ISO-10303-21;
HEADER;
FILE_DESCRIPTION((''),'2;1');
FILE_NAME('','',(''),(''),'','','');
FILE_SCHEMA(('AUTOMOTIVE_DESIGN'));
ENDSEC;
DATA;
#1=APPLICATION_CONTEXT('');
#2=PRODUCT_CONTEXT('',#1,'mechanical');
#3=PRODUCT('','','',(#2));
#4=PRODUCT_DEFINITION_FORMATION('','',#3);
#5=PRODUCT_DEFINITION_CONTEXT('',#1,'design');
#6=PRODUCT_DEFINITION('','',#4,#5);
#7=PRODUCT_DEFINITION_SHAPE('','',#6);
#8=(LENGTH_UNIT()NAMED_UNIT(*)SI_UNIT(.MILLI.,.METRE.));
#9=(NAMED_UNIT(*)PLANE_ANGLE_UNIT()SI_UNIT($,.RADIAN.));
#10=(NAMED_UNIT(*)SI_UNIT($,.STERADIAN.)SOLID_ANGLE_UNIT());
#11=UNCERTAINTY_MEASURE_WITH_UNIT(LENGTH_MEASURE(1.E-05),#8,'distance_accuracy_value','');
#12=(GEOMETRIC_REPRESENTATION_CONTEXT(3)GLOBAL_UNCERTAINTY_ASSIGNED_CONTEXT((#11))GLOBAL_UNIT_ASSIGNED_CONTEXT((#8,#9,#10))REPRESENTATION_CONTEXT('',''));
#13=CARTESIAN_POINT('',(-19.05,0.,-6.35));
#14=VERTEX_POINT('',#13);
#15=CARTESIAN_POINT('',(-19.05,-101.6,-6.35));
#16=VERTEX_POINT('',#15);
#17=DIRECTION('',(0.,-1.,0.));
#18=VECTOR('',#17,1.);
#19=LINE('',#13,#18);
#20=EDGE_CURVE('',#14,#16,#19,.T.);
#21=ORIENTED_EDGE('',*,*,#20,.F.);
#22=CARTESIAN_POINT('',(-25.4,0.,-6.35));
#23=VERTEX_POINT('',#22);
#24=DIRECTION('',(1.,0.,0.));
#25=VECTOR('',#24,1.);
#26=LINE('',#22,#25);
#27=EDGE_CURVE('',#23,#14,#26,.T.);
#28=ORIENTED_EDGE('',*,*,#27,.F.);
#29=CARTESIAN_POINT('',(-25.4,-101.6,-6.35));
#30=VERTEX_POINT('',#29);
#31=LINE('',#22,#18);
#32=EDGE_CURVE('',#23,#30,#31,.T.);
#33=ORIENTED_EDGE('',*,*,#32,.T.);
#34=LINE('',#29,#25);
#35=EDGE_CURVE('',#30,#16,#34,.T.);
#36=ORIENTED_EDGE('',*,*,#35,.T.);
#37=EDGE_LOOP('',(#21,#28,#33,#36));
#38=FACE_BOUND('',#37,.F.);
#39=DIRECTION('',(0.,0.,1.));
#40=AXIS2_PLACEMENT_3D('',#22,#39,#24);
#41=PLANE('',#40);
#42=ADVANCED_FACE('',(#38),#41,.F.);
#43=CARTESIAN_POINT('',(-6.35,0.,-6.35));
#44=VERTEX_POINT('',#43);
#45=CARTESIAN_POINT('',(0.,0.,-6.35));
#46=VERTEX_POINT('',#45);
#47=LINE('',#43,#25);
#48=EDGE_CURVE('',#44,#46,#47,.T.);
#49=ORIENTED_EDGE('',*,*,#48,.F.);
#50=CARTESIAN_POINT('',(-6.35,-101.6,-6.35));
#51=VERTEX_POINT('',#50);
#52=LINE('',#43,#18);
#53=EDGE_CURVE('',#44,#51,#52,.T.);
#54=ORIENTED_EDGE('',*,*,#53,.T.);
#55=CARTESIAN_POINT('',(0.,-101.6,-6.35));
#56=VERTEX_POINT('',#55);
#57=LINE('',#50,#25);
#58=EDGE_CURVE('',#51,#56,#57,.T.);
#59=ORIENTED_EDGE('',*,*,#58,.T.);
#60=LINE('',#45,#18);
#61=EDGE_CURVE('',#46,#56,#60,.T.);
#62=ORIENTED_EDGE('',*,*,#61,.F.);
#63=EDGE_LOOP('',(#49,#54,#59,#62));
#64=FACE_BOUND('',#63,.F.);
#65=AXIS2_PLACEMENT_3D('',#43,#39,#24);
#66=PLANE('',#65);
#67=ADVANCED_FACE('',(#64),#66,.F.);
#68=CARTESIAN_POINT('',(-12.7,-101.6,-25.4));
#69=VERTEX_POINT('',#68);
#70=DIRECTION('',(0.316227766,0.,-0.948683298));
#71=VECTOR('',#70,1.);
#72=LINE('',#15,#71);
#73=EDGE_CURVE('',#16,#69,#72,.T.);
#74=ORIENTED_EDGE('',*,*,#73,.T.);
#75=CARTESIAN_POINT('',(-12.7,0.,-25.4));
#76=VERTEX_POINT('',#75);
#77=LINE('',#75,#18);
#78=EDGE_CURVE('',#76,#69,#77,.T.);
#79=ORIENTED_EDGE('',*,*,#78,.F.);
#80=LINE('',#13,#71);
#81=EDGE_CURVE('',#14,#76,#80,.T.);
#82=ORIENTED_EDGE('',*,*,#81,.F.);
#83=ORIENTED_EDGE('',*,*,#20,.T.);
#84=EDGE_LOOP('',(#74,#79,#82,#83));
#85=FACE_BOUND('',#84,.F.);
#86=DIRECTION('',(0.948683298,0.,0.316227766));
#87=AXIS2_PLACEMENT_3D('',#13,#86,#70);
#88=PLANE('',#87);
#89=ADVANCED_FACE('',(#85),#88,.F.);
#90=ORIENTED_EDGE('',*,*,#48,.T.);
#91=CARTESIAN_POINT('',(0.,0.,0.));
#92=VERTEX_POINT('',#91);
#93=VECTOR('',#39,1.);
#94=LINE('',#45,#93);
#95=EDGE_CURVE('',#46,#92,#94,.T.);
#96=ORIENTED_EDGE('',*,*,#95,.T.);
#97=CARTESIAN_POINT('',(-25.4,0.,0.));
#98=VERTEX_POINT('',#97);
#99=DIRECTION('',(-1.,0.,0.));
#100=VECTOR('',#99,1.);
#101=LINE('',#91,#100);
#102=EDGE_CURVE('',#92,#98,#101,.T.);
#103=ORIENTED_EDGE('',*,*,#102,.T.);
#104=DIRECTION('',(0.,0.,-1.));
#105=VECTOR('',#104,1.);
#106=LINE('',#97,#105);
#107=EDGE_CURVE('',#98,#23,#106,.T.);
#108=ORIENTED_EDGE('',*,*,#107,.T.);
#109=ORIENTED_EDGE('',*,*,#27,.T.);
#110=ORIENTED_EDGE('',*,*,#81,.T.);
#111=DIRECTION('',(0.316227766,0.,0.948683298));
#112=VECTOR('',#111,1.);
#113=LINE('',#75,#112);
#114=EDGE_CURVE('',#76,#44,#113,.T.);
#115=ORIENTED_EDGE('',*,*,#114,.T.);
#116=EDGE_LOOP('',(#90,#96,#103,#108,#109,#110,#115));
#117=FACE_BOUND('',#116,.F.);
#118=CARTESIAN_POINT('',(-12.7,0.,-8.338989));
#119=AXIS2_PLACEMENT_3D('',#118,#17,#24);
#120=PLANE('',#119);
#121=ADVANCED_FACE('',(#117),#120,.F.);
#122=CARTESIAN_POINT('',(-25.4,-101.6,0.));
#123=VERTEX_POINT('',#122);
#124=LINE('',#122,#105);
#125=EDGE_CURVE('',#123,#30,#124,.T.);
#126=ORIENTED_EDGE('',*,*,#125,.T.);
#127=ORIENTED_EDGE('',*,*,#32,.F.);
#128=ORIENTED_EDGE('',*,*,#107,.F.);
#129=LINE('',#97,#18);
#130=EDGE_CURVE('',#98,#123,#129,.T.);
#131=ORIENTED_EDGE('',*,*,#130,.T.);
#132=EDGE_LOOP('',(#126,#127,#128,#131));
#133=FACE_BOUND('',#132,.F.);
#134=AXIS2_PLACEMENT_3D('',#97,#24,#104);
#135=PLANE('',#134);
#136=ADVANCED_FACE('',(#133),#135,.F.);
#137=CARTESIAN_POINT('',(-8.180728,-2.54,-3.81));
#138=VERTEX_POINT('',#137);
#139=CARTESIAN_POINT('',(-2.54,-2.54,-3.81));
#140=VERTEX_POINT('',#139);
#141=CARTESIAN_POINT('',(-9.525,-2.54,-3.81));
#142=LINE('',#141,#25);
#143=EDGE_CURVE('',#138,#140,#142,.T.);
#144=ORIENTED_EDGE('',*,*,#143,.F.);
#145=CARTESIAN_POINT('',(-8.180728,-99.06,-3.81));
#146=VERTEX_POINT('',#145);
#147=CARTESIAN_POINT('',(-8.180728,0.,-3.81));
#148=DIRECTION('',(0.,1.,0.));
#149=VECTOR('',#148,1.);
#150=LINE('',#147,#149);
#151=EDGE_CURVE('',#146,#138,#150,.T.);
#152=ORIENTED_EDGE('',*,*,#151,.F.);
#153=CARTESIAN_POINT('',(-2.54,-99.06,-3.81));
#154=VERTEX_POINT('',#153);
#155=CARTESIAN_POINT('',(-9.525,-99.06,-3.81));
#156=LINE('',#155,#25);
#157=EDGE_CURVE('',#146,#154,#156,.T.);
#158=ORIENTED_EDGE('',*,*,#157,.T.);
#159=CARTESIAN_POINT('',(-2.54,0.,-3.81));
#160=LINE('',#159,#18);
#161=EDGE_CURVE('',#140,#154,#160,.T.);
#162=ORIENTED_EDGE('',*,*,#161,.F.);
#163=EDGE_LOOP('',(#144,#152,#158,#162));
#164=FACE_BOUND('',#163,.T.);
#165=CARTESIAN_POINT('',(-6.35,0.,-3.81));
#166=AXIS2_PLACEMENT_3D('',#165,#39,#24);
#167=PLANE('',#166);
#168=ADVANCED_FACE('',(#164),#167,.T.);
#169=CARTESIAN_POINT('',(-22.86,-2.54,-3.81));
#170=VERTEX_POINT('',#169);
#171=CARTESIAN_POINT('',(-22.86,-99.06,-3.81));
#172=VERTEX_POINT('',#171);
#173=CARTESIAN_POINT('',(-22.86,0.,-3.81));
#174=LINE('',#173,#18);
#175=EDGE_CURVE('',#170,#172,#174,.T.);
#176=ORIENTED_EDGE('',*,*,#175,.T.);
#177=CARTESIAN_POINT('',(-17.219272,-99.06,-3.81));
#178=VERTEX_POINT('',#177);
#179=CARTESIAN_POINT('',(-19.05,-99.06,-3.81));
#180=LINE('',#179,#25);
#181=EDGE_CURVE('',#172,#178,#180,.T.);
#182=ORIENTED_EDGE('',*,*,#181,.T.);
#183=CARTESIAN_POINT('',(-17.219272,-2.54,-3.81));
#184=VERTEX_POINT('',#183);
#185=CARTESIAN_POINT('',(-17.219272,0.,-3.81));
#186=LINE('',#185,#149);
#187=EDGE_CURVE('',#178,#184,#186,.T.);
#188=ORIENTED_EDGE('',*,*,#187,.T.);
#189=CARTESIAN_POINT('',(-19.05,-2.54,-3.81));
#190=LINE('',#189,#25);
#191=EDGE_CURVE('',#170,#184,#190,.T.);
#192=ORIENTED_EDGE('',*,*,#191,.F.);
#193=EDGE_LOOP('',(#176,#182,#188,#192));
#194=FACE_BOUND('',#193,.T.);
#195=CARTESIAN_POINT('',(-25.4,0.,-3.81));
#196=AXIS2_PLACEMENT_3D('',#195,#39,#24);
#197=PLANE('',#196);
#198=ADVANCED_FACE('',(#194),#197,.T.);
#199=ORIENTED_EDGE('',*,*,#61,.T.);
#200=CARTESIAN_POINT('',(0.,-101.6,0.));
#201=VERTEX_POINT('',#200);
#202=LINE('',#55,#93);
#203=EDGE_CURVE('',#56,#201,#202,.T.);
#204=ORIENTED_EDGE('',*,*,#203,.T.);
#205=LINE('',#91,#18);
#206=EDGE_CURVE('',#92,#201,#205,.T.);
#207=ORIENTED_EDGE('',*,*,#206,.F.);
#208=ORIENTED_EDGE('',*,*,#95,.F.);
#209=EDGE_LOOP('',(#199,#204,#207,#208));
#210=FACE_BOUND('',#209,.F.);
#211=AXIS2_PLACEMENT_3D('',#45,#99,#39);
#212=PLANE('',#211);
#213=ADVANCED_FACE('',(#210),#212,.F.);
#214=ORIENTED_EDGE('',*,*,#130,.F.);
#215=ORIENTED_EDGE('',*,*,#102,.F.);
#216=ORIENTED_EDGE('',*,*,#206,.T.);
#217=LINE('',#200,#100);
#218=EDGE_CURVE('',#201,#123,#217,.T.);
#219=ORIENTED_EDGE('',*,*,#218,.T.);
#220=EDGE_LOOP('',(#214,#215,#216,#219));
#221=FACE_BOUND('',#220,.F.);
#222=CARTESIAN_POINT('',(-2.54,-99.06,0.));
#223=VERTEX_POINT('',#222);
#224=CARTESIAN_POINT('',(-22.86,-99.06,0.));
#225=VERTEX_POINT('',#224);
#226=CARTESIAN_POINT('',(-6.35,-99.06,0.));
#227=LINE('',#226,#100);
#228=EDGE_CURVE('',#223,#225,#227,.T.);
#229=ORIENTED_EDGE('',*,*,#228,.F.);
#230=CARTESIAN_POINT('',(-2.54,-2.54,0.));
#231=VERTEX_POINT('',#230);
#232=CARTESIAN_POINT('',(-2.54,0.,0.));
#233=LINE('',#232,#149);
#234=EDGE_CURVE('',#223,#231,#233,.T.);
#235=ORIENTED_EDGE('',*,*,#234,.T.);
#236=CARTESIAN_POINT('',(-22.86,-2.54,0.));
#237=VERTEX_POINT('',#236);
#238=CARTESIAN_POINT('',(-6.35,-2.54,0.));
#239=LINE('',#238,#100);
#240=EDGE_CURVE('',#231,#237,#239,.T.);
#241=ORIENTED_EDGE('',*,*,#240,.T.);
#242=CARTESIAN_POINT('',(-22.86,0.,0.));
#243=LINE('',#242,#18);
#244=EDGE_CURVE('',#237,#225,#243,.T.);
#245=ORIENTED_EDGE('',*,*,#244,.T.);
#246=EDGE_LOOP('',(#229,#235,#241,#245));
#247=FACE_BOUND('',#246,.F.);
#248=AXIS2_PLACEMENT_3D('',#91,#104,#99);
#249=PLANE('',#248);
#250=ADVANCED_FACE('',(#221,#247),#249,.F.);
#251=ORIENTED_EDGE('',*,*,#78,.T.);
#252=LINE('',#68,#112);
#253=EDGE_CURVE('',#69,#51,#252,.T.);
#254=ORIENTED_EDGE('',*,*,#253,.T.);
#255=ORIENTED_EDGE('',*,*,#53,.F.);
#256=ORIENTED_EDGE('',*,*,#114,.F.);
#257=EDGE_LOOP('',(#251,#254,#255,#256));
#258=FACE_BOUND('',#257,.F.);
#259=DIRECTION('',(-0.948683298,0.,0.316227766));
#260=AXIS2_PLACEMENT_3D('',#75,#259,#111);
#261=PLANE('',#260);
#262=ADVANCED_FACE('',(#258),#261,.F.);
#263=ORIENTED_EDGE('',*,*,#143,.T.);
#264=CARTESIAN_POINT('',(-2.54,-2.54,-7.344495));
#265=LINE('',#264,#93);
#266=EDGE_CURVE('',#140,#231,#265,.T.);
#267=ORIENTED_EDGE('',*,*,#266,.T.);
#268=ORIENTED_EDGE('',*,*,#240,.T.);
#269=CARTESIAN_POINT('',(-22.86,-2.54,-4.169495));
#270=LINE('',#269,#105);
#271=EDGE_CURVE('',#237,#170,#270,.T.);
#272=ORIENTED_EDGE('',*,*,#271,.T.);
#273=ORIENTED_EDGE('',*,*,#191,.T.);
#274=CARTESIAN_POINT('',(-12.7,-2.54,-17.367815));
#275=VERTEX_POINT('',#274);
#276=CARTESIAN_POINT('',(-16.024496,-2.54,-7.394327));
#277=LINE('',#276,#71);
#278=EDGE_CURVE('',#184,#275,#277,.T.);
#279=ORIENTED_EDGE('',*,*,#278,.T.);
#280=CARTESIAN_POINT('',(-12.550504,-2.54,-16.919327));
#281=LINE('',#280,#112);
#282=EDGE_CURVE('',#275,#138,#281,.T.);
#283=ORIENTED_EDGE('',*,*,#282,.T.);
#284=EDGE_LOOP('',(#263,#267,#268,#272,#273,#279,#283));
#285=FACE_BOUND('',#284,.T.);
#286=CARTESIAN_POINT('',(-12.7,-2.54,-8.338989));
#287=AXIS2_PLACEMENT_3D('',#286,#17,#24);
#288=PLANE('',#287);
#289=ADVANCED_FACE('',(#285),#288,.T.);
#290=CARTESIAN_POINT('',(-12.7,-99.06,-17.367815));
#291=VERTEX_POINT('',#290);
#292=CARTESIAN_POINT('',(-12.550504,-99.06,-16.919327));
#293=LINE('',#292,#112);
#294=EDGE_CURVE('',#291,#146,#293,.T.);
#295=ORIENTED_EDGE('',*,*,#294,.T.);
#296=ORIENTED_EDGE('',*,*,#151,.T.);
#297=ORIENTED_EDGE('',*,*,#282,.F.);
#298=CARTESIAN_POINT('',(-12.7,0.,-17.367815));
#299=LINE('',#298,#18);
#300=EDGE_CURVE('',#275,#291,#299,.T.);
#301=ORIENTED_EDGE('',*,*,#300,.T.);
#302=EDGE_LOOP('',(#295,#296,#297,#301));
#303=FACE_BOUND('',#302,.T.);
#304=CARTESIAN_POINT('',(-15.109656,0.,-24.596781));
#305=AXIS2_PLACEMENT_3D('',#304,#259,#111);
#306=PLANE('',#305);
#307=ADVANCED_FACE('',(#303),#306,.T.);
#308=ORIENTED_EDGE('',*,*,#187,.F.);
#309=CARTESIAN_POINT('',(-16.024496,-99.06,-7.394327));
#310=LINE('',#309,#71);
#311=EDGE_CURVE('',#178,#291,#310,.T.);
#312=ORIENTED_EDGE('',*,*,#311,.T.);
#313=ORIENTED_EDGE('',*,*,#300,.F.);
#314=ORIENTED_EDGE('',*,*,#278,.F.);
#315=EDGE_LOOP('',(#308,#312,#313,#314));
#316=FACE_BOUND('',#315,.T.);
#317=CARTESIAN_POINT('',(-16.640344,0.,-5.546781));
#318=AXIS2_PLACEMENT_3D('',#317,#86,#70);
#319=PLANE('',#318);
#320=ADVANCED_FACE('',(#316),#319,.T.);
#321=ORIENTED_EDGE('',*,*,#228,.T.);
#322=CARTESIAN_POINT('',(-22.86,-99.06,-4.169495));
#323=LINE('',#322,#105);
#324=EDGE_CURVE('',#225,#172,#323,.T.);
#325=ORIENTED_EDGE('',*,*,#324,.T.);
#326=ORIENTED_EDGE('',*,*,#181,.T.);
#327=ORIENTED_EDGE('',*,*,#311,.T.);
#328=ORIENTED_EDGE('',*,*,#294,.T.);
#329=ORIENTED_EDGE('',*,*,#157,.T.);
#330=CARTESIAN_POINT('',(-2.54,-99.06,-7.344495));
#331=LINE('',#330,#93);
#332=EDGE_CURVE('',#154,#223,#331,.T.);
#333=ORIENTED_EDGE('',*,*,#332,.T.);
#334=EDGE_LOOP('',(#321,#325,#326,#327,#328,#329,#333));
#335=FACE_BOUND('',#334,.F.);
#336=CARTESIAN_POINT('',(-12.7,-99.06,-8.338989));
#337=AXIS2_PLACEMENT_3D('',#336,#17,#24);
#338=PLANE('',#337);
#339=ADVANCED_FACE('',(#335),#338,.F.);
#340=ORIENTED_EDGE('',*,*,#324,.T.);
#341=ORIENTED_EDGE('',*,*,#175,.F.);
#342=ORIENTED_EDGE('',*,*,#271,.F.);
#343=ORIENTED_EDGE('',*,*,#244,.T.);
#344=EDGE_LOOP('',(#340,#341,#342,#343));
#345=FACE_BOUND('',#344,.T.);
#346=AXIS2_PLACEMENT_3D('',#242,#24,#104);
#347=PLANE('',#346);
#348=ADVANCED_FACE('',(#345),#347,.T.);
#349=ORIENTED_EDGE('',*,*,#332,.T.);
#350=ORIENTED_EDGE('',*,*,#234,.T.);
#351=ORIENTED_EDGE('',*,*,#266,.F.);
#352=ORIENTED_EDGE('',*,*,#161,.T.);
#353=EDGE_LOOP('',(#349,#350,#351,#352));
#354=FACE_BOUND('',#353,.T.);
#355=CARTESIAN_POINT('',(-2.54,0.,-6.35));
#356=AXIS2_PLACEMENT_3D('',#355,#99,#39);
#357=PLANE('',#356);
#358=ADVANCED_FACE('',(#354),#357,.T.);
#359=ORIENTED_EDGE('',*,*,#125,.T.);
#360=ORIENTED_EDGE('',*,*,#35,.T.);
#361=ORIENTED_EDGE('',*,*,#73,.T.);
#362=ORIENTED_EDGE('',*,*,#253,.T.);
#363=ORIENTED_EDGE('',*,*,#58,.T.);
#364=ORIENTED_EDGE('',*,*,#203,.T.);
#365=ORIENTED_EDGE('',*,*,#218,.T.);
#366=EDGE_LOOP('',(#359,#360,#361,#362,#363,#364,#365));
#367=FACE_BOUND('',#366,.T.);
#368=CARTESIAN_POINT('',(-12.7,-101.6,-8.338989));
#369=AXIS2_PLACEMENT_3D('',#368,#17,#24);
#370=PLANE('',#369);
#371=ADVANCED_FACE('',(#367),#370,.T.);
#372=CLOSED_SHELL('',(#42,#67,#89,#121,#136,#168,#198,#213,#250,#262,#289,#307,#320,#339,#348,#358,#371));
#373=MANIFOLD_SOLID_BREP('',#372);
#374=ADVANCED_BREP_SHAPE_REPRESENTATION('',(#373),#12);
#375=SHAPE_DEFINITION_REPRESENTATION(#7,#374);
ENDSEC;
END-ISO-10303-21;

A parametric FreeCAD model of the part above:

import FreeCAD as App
import Part
import Sketcher
Q = App.Units.Quantity


def faces_at(feature, points):
    """Names of the faces that lie closest to the given points."""
    faces = feature.Shape.Faces
    near = lambda p: min(range(len(faces)), key=lambda i: faces[i].distToShape(Part.Vertex(*p))[0])
    return sorted({f"Face{near(p) + 1}" for p in points})

doc = App.newDocument("Part")
params = doc.addObject("Spreadsheet::Sheet", "Params")
for row, (alias, value) in enumerate([
    ("sketch1_width", "1 in"),
    ("sketch1_width2", "0.25 in"),
    ("pad1_length", "4 in"),
    ("thickness_wall", "0.1 in"),
], start=1):
    params.set(f"A{row}", alias)
    params.set(f"B{row}", "=" + value)
    params.setAlias(f"B{row}", alias)

body = doc.addObject("PartDesign::Body", "Body")

sketch1 = body.newObject("Sketcher::SketchObject", "Sketch")
sketch1.AttachmentSupport = (doc.getObject("XZ_Plane"), [""])
sketch1.MapMode = "FlatFace"
sketch1.addGeometry(Part.LineSegment(App.Vector(0, 0, 0), App.Vector(-25, 0, 0)), False)
sketch1.addGeometry(Part.LineSegment(App.Vector(-25, 0, 0), App.Vector(-25, -6, 0)), False)
sketch1.addGeometry(Part.LineSegment(App.Vector(-25, -6, 0), App.Vector(-19, -6, 0)), False)
sketch1.addGeometry(Part.LineSegment(App.Vector(-19, -6, 0), App.Vector(-13, -25, 0)), False)
sketch1.addGeometry(Part.LineSegment(App.Vector(-13, -25, 0), App.Vector(-6, -6, 0)), False)
sketch1.addGeometry(Part.LineSegment(App.Vector(-6, -6, 0), App.Vector(0, -6, 0)), False)
sketch1.addGeometry(Part.LineSegment(App.Vector(0, -6, 0), App.Vector(0, 0, 0)), False)
sketch1.addConstraint(Sketcher.Constraint("Coincident", 0, 2, 1, 1))
sketch1.addConstraint(Sketcher.Constraint("Coincident", 1, 2, 2, 1))
sketch1.addConstraint(Sketcher.Constraint("Coincident", 2, 2, 3, 1))
sketch1.addConstraint(Sketcher.Constraint("Coincident", 3, 2, 4, 1))
sketch1.addConstraint(Sketcher.Constraint("Coincident", 4, 2, 5, 1))
sketch1.addConstraint(Sketcher.Constraint("Coincident", 5, 2, 6, 1))
sketch1.addConstraint(Sketcher.Constraint("Coincident", 6, 2, 0, 1))
sketch1.addConstraint(Sketcher.Constraint("Horizontal", 0))
sketch1.addConstraint(Sketcher.Constraint("Vertical", 1))
sketch1.addConstraint(Sketcher.Constraint("Horizontal", 2))
sketch1.addConstraint(Sketcher.Constraint("Horizontal", 5))
sketch1.addConstraint(Sketcher.Constraint("Vertical", 6))
sketch1.addConstraint(Sketcher.Constraint("Coincident", 6, 2, -1, 1))
sketch1.addConstraint(Sketcher.Constraint("Horizontal", 2, 2, 4, 2))
sketch1.addConstraint(Sketcher.Constraint("Equal", 2, 5))
sketch1.addConstraint(Sketcher.Constraint("Equal", 5, 1))
sketch1.addConstraint(Sketcher.Constraint("Equal", 3, 4))
sketch1.addConstraint(Sketcher.Constraint("DistanceX", 0, 2, 0, 1, Q("1 in")))
sketch1.addConstraint(Sketcher.Constraint("DistanceY", 3, 2, -1, 1, Q("1 in")))
sketch1.addConstraint(Sketcher.Constraint("DistanceX", 2, 1, 2, 2, Q("0.25 in")))
sketch1.setExpression("Constraints[17]", "Params.sketch1_width")
sketch1.setExpression("Constraints[19]", "Params.sketch1_width2")
pad1 = body.newObject("PartDesign::Pad", "Pad")
pad1.Profile = sketch1
pad1.setExpression("Length", "Params.pad1_length")
doc.recompute()

thickness = body.newObject("PartDesign::Thickness", "Thickness")
thickness.Base = (pad1, faces_at(pad1, [(-12.7, -50.8, 0)]))
thickness.setExpression("Value", "Params.thickness_wall")
thickness.Reversed = True
thickness.Join = "Intersection"

doc.recompute()
